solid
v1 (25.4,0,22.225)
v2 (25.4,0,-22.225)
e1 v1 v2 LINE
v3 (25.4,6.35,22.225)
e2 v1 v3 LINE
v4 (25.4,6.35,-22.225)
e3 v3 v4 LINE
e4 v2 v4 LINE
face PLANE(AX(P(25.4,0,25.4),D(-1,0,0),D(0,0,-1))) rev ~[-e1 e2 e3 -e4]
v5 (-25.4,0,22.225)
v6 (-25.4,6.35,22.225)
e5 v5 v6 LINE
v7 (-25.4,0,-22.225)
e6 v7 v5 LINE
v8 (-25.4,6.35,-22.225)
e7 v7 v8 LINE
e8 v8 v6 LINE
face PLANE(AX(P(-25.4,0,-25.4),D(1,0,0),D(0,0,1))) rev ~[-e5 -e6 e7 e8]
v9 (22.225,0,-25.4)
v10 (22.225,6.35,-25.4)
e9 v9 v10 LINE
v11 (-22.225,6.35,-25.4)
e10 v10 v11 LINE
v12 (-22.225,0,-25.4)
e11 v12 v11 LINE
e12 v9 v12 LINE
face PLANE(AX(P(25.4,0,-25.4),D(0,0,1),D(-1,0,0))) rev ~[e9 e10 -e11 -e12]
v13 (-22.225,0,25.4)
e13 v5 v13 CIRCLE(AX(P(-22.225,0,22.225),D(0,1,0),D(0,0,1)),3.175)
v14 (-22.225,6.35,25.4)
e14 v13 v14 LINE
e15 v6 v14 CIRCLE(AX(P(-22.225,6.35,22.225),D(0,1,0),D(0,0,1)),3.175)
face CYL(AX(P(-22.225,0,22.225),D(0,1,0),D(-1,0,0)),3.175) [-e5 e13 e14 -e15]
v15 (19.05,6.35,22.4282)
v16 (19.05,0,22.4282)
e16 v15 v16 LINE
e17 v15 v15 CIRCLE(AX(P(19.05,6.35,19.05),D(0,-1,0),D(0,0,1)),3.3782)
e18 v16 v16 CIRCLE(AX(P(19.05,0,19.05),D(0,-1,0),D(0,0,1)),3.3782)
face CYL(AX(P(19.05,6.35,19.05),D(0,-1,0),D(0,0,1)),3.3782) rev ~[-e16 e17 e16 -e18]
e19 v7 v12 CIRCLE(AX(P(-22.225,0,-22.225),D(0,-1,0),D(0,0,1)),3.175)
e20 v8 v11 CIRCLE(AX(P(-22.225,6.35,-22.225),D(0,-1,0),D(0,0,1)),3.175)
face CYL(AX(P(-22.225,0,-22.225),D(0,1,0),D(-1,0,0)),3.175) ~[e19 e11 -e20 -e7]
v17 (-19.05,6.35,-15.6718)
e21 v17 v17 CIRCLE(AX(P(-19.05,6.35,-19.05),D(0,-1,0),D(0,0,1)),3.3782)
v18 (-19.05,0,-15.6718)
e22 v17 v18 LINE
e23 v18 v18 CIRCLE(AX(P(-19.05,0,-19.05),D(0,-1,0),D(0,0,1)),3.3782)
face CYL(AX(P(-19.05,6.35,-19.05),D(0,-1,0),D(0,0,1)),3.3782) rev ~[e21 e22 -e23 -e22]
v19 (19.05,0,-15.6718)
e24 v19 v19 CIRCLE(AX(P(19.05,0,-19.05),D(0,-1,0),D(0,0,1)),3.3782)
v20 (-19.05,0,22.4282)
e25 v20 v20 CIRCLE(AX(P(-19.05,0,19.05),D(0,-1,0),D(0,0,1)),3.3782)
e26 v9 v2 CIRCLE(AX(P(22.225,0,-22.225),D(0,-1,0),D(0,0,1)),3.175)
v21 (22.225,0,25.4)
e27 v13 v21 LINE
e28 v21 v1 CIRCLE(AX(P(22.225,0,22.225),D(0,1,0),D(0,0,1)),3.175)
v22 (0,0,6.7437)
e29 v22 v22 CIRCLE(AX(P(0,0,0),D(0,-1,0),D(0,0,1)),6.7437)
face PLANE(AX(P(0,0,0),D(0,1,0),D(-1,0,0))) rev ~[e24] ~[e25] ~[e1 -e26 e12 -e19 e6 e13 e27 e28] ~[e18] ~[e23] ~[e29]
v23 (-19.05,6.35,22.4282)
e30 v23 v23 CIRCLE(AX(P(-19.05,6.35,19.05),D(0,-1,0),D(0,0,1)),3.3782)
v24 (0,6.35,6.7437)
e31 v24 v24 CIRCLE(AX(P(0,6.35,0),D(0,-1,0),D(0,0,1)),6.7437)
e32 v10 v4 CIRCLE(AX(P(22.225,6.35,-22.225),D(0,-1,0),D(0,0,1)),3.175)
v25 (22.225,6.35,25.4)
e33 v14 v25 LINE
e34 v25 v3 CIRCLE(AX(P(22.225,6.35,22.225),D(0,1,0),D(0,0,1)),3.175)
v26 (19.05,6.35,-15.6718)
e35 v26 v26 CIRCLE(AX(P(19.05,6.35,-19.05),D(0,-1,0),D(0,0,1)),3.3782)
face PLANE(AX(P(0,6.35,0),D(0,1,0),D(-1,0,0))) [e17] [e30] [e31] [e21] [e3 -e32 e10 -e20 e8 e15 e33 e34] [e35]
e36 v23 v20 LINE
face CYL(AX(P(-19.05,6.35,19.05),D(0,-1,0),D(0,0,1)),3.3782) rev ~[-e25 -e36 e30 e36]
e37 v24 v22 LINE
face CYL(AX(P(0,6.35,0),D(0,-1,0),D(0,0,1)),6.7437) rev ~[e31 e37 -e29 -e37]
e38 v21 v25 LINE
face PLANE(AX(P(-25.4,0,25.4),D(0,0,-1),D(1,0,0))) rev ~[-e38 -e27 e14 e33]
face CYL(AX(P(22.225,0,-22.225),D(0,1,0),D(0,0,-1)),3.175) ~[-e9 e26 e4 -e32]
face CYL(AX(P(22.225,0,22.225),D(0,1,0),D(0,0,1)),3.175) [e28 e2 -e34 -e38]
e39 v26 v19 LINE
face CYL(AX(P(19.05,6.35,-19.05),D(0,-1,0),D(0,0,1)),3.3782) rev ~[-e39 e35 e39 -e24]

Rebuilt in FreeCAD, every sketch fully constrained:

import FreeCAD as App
import Part
import Sketcher

V = App.Vector
Q = App.Units.Quantity


def edges_at(feature, points):
    """Names of the edges that pass closest to the given points."""
    edges = feature.Shape.Edges
    near = lambda p: min(range(len(edges)), key=lambda i: edges[i].distToShape(Part.Vertex(*p))[0])
    return sorted({f"Edge{near(p) + 1}" for p in points})


def add_polygon(sketch, points):
    """Adds a closed chain of lines whose ends are joined by coincident constraints."""
    first, n = sketch.GeometryCount, len(points)
    for a, b in zip(points, points[1:] + points[:1]):
        sketch.addGeometry(Part.LineSegment(App.Vector(*a, 0), App.Vector(*b, 0)), False)
    for i in range(n):
        sketch.addConstraint(Sketcher.Constraint("Coincident", first + i, 2, first + (i + 1) % n, 1))

doc = App.newDocument("Part")
body = doc.addObject("PartDesign::Body", "Body")

# Sketch on XZ plane
sketch1 = doc.addObject("Sketcher::SketchObject", "Sketch")
body.addObject(sketch1)
sketch1.AttachmentSupport = (doc.XZ_Plane, [""])
sketch1.MapMode = "FlatFace"
add_polygon(sketch1, [(-25.4, -25.4), (-25.4, 25.4), (25.4, 25.4), (25.4, -25.4)])  # lines 0-3
sketch1.addConstraint(Sketcher.Constraint("Vertical", 0))
sketch1.addConstraint(Sketcher.Constraint("Horizontal", 1))
sketch1.addConstraint(Sketcher.Constraint("Vertical", 2))
sketch1.addConstraint(Sketcher.Constraint("Horizontal", 3))
sketch1.addConstraint(Sketcher.Constraint("Symmetric", 0, 2, 2, 2, -1, 1))
sketch1.addConstraint(Sketcher.Constraint("Equal", 3, 0))
sketch1.addConstraint(Sketcher.Constraint("DistanceX", 1, 1, 1, 2, Q("2 in")))
pad1 = doc.addObject("PartDesign::Pad", "Pad")
body.addObject(pad1)
pad1.Profile = sketch1
pad1.Length = Q("0.25 in")
pad1.Reversed = True

# Sketch on XZ plane
sketch2 = doc.addObject("Sketcher::SketchObject", "Sketch001")
body.addObject(sketch2)
sketch2.AttachmentSupport = (doc.XZ_Plane, [""])
sketch2.MapMode = "FlatFace"
sketch2.AttachmentOffset = App.Placement(V(0, 0, -0.25 * 25.4), App.Rotation())
sketch2.addGeometry(Part.Circle(V(-19.05, 19.05, 0), V(0, 0, 1), 3.3782), False)
sketch2.addGeometry(Part.Circle(V(-19.05, -19.05, 0), V(0, 0, 1), 3.3782), False)
sketch2.addGeometry(Part.Circle(V(19.05, -19.05, 0), V(0, 0, 1), 3.3782), False)
sketch2.addGeometry(Part.Circle(V(19.05, 19.05, 0), V(0, 0, 1), 3.3782), False)
sketch2.addConstraint(Sketcher.Constraint("Equal", 0, 1))
sketch2.addConstraint(Sketcher.Constraint("Equal", 1, 2))
sketch2.addConstraint(Sketcher.Constraint("Equal", 2, 3))
sketch2.addConstraint(Sketcher.Constraint("Symmetric", 0, 3, 2, 3, -1, 1))
sketch2.addConstraint(Sketcher.Constraint("Symmetric", 1, 3, 3, 3, -1, 1))
sketch2.addConstraint(Sketcher.Constraint("Symmetric", 1, 3, 2, 3, -2))
sketch2.addConstraint(Sketcher.Constraint("Diameter", 0, Q("0.266 in")))
sketch2.addConstraint(Sketcher.Constraint("DistanceY", 1, 3, 0, 3, Q("1.5 in")))
sketch2.addConstraint(Sketcher.Constraint("DistanceX", 1, 3, 2, 3, Q("1.5 in")))
doc.recompute()
hole = doc.addObject("PartDesign::Hole", "Hole")
body.addObject(hole)
hole.Profile = sketch2
hole.ThreadType = "None"
hole.Diameter = Q("0.266 in")
hole.DepthType = "ThroughAll"
hole.Reversed = True
doc.recompute()

fillet = doc.addObject("PartDesign::Fillet", "Fillet")
body.addObject(fillet)
fillet.Base = (hole, edges_at(hole, [
    (-25.4, 3.175, 25.4),
    (-25.4, 3.175, -25.4),
    (25.4, 3.175, -25.4),
    (25.4, 3.175, 25.4),
]))
fillet.Radius = Q("0.125 in")

# Sketch on XZ plane
sketch3 = doc.addObject("Sketcher::SketchObject", "Sketch002")
body.addObject(sketch3)
sketch3.AttachmentSupport = (doc.XZ_Plane, [""])
sketch3.MapMode = "FlatFace"
sketch3.AttachmentOffset = App.Placement(V(0, 0, -0.25 * 25.4), App.Rotation())
sketch3.addGeometry(Part.Circle(V(0, 0, 0), V(0, 0, 1), 6.7437), False)
sketch3.addConstraint(Sketcher.Constraint("Coincident", 0, 3, -1, 1))
sketch3.addConstraint(Sketcher.Constraint("Diameter", 0, Q("0.531 in")))
doc.recompute()
hole2 = doc.addObject("PartDesign::Hole", "Hole001")
body.addObject(hole2)
hole2.Profile = sketch3
hole2.ThreadType = "None"
hole2.Diameter = Q("0.531 in")
hole2.DepthType = "ThroughAll"
hole2.Reversed = True

doc.recompute()
